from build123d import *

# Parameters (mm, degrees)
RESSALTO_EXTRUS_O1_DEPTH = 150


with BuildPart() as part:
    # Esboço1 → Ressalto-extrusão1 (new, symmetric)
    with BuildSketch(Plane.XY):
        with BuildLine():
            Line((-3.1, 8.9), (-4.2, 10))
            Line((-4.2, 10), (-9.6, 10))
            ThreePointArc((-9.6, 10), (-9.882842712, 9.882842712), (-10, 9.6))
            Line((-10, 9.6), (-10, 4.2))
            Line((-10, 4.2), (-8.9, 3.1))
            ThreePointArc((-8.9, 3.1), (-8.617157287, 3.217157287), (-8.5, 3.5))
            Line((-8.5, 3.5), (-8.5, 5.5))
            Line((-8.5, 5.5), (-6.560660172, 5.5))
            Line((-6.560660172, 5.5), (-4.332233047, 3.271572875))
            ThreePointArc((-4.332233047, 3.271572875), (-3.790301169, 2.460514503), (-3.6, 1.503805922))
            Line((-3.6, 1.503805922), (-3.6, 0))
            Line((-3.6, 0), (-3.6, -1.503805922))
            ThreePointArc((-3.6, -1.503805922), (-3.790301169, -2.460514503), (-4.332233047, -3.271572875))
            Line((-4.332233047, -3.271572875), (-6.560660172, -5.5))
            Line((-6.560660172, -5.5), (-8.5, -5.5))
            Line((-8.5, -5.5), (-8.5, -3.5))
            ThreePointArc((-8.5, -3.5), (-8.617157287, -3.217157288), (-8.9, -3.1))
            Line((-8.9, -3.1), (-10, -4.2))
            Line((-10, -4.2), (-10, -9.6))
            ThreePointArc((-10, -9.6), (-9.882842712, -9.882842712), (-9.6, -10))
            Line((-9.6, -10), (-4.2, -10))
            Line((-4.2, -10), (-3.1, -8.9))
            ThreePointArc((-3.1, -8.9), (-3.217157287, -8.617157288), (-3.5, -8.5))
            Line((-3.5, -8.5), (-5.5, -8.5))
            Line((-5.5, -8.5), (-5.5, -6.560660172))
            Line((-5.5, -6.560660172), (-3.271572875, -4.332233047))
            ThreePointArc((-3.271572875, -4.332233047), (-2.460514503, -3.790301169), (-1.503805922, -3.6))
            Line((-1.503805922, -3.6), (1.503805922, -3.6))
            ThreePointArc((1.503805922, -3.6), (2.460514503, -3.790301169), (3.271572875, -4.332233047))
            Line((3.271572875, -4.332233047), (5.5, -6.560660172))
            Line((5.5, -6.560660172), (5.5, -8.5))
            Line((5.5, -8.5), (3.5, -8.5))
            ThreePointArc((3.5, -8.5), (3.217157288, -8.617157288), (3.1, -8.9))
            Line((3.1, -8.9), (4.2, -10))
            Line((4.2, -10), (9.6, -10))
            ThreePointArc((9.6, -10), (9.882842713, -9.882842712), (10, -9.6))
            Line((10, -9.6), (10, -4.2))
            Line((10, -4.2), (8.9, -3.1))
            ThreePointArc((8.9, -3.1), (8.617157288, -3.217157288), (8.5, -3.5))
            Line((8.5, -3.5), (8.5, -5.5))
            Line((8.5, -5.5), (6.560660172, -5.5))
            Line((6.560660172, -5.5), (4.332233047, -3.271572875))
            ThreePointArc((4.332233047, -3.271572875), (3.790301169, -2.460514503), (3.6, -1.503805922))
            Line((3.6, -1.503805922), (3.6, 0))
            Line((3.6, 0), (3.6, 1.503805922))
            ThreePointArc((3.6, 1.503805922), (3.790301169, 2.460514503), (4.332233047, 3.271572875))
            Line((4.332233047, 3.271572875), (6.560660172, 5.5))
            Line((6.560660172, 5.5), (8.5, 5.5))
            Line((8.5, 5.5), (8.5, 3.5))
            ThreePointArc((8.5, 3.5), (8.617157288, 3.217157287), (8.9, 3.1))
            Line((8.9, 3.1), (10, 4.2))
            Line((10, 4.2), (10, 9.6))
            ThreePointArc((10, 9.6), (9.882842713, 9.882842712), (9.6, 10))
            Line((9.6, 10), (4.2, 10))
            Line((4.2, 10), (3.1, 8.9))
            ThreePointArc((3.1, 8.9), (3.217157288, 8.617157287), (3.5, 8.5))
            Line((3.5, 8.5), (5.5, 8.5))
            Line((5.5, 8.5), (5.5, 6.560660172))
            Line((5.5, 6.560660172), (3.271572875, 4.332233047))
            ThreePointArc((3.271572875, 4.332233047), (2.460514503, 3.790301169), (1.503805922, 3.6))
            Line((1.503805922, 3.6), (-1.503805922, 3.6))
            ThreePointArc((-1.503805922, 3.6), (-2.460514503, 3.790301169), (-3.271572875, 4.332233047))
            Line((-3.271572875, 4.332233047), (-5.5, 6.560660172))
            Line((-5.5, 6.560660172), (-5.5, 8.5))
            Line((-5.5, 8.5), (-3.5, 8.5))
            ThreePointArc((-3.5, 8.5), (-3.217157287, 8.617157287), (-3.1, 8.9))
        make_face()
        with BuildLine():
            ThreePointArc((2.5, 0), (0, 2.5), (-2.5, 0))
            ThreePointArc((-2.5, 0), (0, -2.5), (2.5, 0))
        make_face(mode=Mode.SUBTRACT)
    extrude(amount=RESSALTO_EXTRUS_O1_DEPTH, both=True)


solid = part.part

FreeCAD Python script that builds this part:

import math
import FreeCAD as App
import Part
import Sketcher
from FreeCAD import Vector

doc = App.newDocument("Part")
body = doc.addObject("PartDesign::Body", "Body")

# Sketch on XY plane
sketch1 = doc.addObject("Sketcher::SketchObject", "Sketch")
body.addObject(sketch1)
sketch1.AttachmentSupport = (doc.XY_Plane, [""])
sketch1.MapMode = "FlatFace"
sketch1.addGeometry(Part.LineSegment(Vector(-3.1, 8.9, 0), Vector(-4.2, 10, 0)), False)
sketch1.addGeometry(Part.LineSegment(Vector(-4.2, 10, 0), Vector(-9.6, 10, 0)), False)
sketch1.addGeometry(Part.ArcOfCircle(Part.Circle(Vector(-9.6, 9.6, 0), Vector(0, 0, 1), 0.4), math.radians(90), math.radians(180)), False)
sketch1.addGeometry(Part.LineSegment(Vector(-10, 9.6, 0), Vector(-10, 4.2, 0)), False)
sketch1.addGeometry(Part.LineSegment(Vector(-10, 4.2, 0), Vector(-8.9, 3.1, 0)), False)
sketch1.addGeometry(Part.ArcOfCircle(Part.Circle(Vector(-8.9, 3.5, 0), Vector(0, 0, 1), 0.4), math.radians(-90), math.radians(0)), False)
sketch1.addGeometry(Part.LineSegment(Vector(-8.5, 3.5, 0), Vector(-8.5, 5.5, 0)), False)
sketch1.addGeometry(Part.LineSegment(Vector(-8.5, 5.5, 0), Vector(-6.56, 5.5, 0)), False)
sketch1.addGeometry(Part.LineSegment(Vector(-6.56, 5.5, 0), Vector(-4.33, 3.27, 0)), False)
sketch1.addGeometry(Part.ArcOfCircle(Part.Circle(Vector(-6.1, 1.5, 0), Vector(0, 0, 1), 2.5), math.radians(0), math.radians(45)), False)
sketch1.addGeometry(Part.LineSegment(Vector(-3.6, 1.5, 0), Vector(-3.6, -1.5, 0)), False)
sketch1.addGeometry(Part.ArcOfCircle(Part.Circle(Vector(-6.1, -1.5, 0), Vector(0, 0, 1), 2.5), math.radians(-45), math.radians(0)), False)
sketch1.addGeometry(Part.LineSegment(Vector(-4.33, -3.27, 0), Vector(-6.56, -5.5, 0)), False)
sketch1.addGeometry(Part.LineSegment(Vector(-6.56, -5.5, 0), Vector(-8.5, -5.5, 0)), False)
sketch1.addGeometry(Part.LineSegment(Vector(-8.5, -5.5, 0), Vector(-8.5, -3.5, 0)), False)
sketch1.addGeometry(Part.ArcOfCircle(Part.Circle(Vector(-8.9, -3.5, 0), Vector(0, 0, 1), 0.4), math.radians(0), math.radians(90)), False)
sketch1.addGeometry(Part.LineSegment(Vector(-8.9, -3.1, 0), Vector(-10, -4.2, 0)), False)
sketch1.addGeometry(Part.LineSegment(Vector(-10, -4.2, 0), Vector(-10, -9.6, 0)), False)
sketch1.addGeometry(Part.ArcOfCircle(Part.Circle(Vector(-9.6, -9.6, 0), Vector(0, 0, 1), 0.4), math.radians(-180), math.radians(-90)), False)
sketch1.addGeometry(Part.LineSegment(Vector(-9.6, -10, 0), Vector(-4.2, -10, 0)), False)
sketch1.addGeometry(Part.LineSegment(Vector(-4.2, -10, 0), Vector(-3.1, -8.9, 0)), False)
sketch1.addGeometry(Part.ArcOfCircle(Part.Circle(Vector(-3.5, -8.9, 0), Vector(0, 0, 1), 0.4), math.radians(0), math.radians(90)), False)
sketch1.addGeometry(Part.LineSegment(Vector(-3.5, -8.5, 0), Vector(-5.5, -8.5, 0)), False)
sketch1.addGeometry(Part.LineSegment(Vector(-5.5, -8.5, 0), Vector(-5.5, -6.56, 0)), False)
sketch1.addGeometry(Part.LineSegment(Vector(-5.5, -6.56, 0), Vector(-3.27, -4.33, 0)), False)
sketch1.addGeometry(Part.ArcOfCircle(Part.Circle(Vector(-1.5, -6.1, 0), Vector(0, 0, 1), 2.5), math.radians(90), math.radians(135)), False)
sketch1.addGeometry(Part.LineSegment(Vector(-1.5, -3.6, 0), Vector(1.5, -3.6, 0)), False)
sketch1.addGeometry(Part.ArcOfCircle(Part.Circle(Vector(1.5, -6.1, 0), Vector(0, 0, 1), 2.5), math.radians(45), math.radians(90)), False)
sketch1.addGeometry(Part.LineSegment(Vector(3.27, -4.33, 0), Vector(5.5, -6.56, 0)), False)
sketch1.addGeometry(Part.LineSegment(Vector(5.5, -6.56, 0), Vector(5.5, -8.5, 0)), False)
sketch1.addGeometry(Part.LineSegment(Vector(5.5, -8.5, 0), Vector(3.5, -8.5, 0)), False)
sketch1.addGeometry(Part.ArcOfCircle(Part.Circle(Vector(3.5, -8.9, 0), Vector(0, 0, 1), 0.4), math.radians(90), math.radians(180)), False)
sketch1.addGeometry(Part.LineSegment(Vector(3.1, -8.9, 0), Vector(4.2, -10, 0)), False)
sketch1.addGeometry(Part.LineSegment(Vector(4.2, -10, 0), Vector(9.6, -10, 0)), False)
sketch1.addGeometry(Part.ArcOfCircle(Part.Circle(Vector(9.6, -9.6, 0), Vector(0, 0, 1), 0.4), math.radians(-90), math.radians(0)), False)
sketch1.addGeometry(Part.LineSegment(Vector(10, -9.6, 0), Vector(10, -4.2, 0)), False)
sketch1.addGeometry(Part.LineSegment(Vector(10, -4.2, 0), Vector(8.9, -3.1, 0)), False)
sketch1.addGeometry(Part.ArcOfCircle(Part.Circle(Vector(8.9, -3.5, 0), Vector(0, 0, 1), 0.4), math.radians(90), math.radians(180)), False)
sketch1.addGeometry(Part.LineSegment(Vector(8.5, -3.5, 0), Vector(8.5, -5.5, 0)), False)
sketch1.addGeometry(Part.LineSegment(Vector(8.5, -5.5, 0), Vector(6.56, -5.5, 0)), False)
sketch1.addGeometry(Part.LineSegment(Vector(6.56, -5.5, 0), Vector(4.33, -3.27, 0)), False)
sketch1.addGeometry(Part.ArcOfCircle(Part.Circle(Vector(6.1, -1.5, 0), Vector(0, 0, 1), 2.5), math.radians(-180), math.radians(-135)), False)
sketch1.addGeometry(Part.LineSegment(Vector(3.6, -1.5, 0), Vector(3.6, 1.5, 0)), False)
sketch1.addGeometry(Part.ArcOfCircle(Part.Circle(Vector(6.1, 1.5, 0), Vector(0, 0, 1), 2.5), math.radians(135), math.radians(180)), False)
sketch1.addGeometry(Part.LineSegment(Vector(4.33, 3.27, 0), Vector(6.56, 5.5, 0)), False)
sketch1.addGeometry(Part.LineSegment(Vector(6.56, 5.5, 0), Vector(8.5, 5.5, 0)), False)
sketch1.addGeometry(Part.LineSegment(Vector(8.5, 5.5, 0), Vector(8.5, 3.5, 0)), False)
sketch1.addGeometry(Part.ArcOfCircle(Part.Circle(Vector(8.9, 3.5, 0), Vector(0, 0, 1), 0.4), math.radians(180), math.radians(270)), False)
sketch1.addGeometry(Part.LineSegment(Vector(8.9, 3.1, 0), Vector(10, 4.2, 0)), False)
sketch1.addGeometry(Part.LineSegment(Vector(10, 4.2, 0), Vector(10, 9.6, 0)), False)
sketch1.addGeometry(Part.ArcOfCircle(Part.Circle(Vector(9.6, 9.6, 0), Vector(0, 0, 1), 0.4), math.radians(0), math.radians(90)), False)
sketch1.addGeometry(Part.LineSegment(Vector(9.6, 10, 0), Vector(4.2, 10, 0)), False)
sketch1.addGeometry(Part.LineSegment(Vector(4.2, 10, 0), Vector(3.1, 8.9, 0)), False)
sketch1.addGeometry(Part.ArcOfCircle(Part.Circle(Vector(3.5, 8.9, 0), Vector(0, 0, 1), 0.4), math.radians(180), math.radians(270)), False)
sketch1.addGeometry(Part.LineSegment(Vector(3.5, 8.5, 0), Vector(5.5, 8.5, 0)), False)
sketch1.addGeometry(Part.LineSegment(Vector(5.5, 8.5, 0), Vector(5.5, 6.56, 0)), False)
sketch1.addGeometry(Part.LineSegment(Vector(5.5, 6.56, 0), Vector(3.27, 4.33, 0)), False)
sketch1.addGeometry(Part.ArcOfCircle(Part.Circle(Vector(1.5, 6.1, 0), Vector(0, 0, 1), 2.5), math.radians(-90), math.radians(-45)), False)
sketch1.addGeometry(Part.LineSegment(Vector(1.5, 3.6, 0), Vector(-1.5, 3.6, 0)), False)
sketch1.addGeometry(Part.ArcOfCircle(Part.Circle(Vector(-1.5, 6.1, 0), Vector(0, 0, 1), 2.5), math.radians(-135), math.radians(-90)), False)
sketch1.addGeometry(Part.LineSegment(Vector(-3.27, 4.33, 0), Vector(-5.5, 6.56, 0)), False)
sketch1.addGeometry(Part.LineSegment(Vector(-5.5, 6.56, 0), Vector(-5.5, 8.5, 0)), False)
sketch1.addGeometry(Part.LineSegment(Vector(-5.5, 8.5, 0), Vector(-3.5, 8.5, 0)), False)
sketch1.addGeometry(Part.ArcOfCircle(Part.Circle(Vector(-3.5, 8.9, 0), Vector(0, 0, 1), 0.4), math.radians(-90), math.radians(0)), False)
sketch1.addGeometry(Part.Circle(Vector(0, 0, 0), Vector(0, 0, 1), 2.5), False)
sketch1.addConstraint(Sketcher.Constraint("Coincident", 0, 2, 1, 1))
sketch1.addConstraint(Sketcher.Constraint("Tangent", 1, 2, 2, 1))
sketch1.addConstraint(Sketcher.Constraint("Tangent", 2, 2, 3, 1))
sketch1.addConstraint(Sketcher.Constraint("Coincident", 3, 2, 4, 1))
sketch1.addConstraint(Sketcher.Constraint("Coincident", 4, 2, 5, 1))
sketch1.addConstraint(Sketcher.Constraint("Tangent", 5, 2, 6, 1))
sketch1.addConstraint(Sketcher.Constraint("Coincident", 6, 2, 7, 1))
sketch1.addConstraint(Sketcher.Constraint("Coincident", 7, 2, 8, 1))
sketch1.addConstraint(Sketcher.Constraint("Tangent", 8, 2, 9, 2))
sketch1.addConstraint(Sketcher.Constraint("Tangent", 9, 1, 10, 1))
sketch1.addConstraint(Sketcher.Constraint("Tangent", 10, 2, 11, 2))
sketch1.addConstraint(Sketcher.Constraint("Tangent", 11, 1, 12, 1))
sketch1.addConstraint(Sketcher.Constraint("Coincident", 12, 2, 13, 1))
sketch1.addConstraint(Sketcher.Constraint("Coincident", 13, 2, 14, 1))
sketch1.addConstraint(Sketcher.Constraint("Tangent", 14, 2, 15, 1))
sketch1.addConstraint(Sketcher.Constraint("Coincident", 15, 2, 16, 1))
sketch1.addConstraint(Sketcher.Constraint("Coincident", 16, 2, 17, 1))
sketch1.addConstraint(Sketcher.Constraint("Tangent", 17, 2, 18, 1))
sketch1.addConstraint(Sketcher.Constraint("Tangent", 18, 2, 19, 1))
sketch1.addConstraint(Sketcher.Constraint("Coincident", 19, 2, 20, 1))
sketch1.addConstraint(Sketcher.Constraint("Coincident", 20, 2, 21, 1))
sketch1.addConstraint(Sketcher.Constraint("Tangent", 21, 2, 22, 1))
sketch1.addConstraint(Sketcher.Constraint("Coincident", 22, 2, 23, 1))
sketch1.addConstraint(Sketcher.Constraint("Coincident", 23, 2, 24, 1))
sketch1.addConstraint(Sketcher.Constraint("Tangent", 24, 2, 25, 2))
sketch1.addConstraint(Sketcher.Constraint("Tangent", 25, 1, 26, 1))
sketch1.addConstraint(Sketcher.Constraint("Tangent", 26, 2, 27, 2))
sketch1.addConstraint(Sketcher.Constraint("Tangent", 27, 1, 28, 1))
sketch1.addConstraint(Sketcher.Constraint("Coincident", 28, 2, 29, 1))
sketch1.addConstraint(Sketcher.Constraint("Coincident", 29, 2, 30, 1))
sketch1.addConstraint(Sketcher.Constraint("Tangent", 30, 2, 31, 1))
sketch1.addConstraint(Sketcher.Constraint("Coincident", 31, 2, 32, 1))
sketch1.addConstraint(Sketcher.Constraint("Coincident", 32, 2, 33, 1))
sketch1.addConstraint(Sketcher.Constraint("Tangent", 33, 2, 34, 1))
sketch1.addConstraint(Sketcher.Constraint("Tangent", 34, 2, 35, 1))
sketch1.addConstraint(Sketcher.Constraint("Coincident", 35, 2, 36, 1))
sketch1.addConstraint(Sketcher.Constraint("Coincident", 36, 2, 37, 1))
sketch1.addConstraint(Sketcher.Constraint("Tangent", 37, 2, 38, 1))
sketch1.addConstraint(Sketcher.Constraint("Coincident", 38, 2, 39, 1))
sketch1.addConstraint(Sketcher.Constraint("Coincident", 39, 2, 40, 1))
sketch1.addConstraint(Sketcher.Constraint("Tangent", 40, 2, 41, 2))
sketch1.addConstraint(Sketcher.Constraint("Tangent", 41, 1, 42, 1))
sketch1.addConstraint(Sketcher.Constraint("Tangent", 42, 2, 43, 2))
sketch1.addConstraint(Sketcher.Constraint("Tangent", 43, 1, 44, 1))
sketch1.addConstraint(Sketcher.Constraint("Coincident", 44, 2, 45, 1))
sketch1.addConstraint(Sketcher.Constraint("Coincident", 45, 2, 46, 1))
sketch1.addConstraint(Sketcher.Constraint("Tangent", 46, 2, 47, 1))
sketch1.addConstraint(Sketcher.Constraint("Coincident", 47, 2, 48, 1))
sketch1.addConstraint(Sketcher.Constraint("Coincident", 48, 2, 49, 1))
sketch1.addConstraint(Sketcher.Constraint("Tangent", 49, 2, 50, 1))
sketch1.addConstraint(Sketcher.Constraint("Tangent", 50, 2, 51, 1))
sketch1.addConstraint(Sketcher.Constraint("Coincident", 51, 2, 52, 1))
sketch1.addConstraint(Sketcher.Constraint("Coincident", 52, 2, 53, 1))
sketch1.addConstraint(Sketcher.Constraint("Tangent", 53, 2, 54, 1))
sketch1.addConstraint(Sketcher.Constraint("Coincident", 54, 2, 55, 1))
sketch1.addConstraint(Sketcher.Constraint("Coincident", 55, 2, 56, 1))
sketch1.addConstraint(Sketcher.Constraint("Tangent", 56, 2, 57, 2))
sketch1.addConstraint(Sketcher.Constraint("Tangent", 57, 1, 58, 1))
sketch1.addConstraint(Sketcher.Constraint("Tangent", 58, 2, 59, 2))
sketch1.addConstraint(Sketcher.Constraint("Tangent", 59, 1, 60, 1))
sketch1.addConstraint(Sketcher.Constraint("Coincident", 60, 2, 61, 1))
sketch1.addConstraint(Sketcher.Constraint("Coincident", 61, 2, 62, 1))
sketch1.addConstraint(Sketcher.Constraint("Tangent", 62, 2, 63, 1))
sketch1.addConstraint(Sketcher.Constraint("Coincident", 63, 2, 0, 1))
sketch1.addConstraint(Sketcher.Constraint("Horizontal", 1))
sketch1.addConstraint(Sketcher.Constraint("Vertical", 3))
sketch1.addConstraint(Sketcher.Constraint("Vertical", 6))
sketch1.addConstraint(Sketcher.Constraint("Horizontal", 7))
sketch1.addConstraint(Sketcher.Constraint("Vertical", 10))
sketch1.addConstraint(Sketcher.Constraint("Horizontal", 13))
sketch1.addConstraint(Sketcher.Constraint("Vertical", 14))
sketch1.addConstraint(Sketcher.Constraint("Vertical", 17))
sketch1.addConstraint(Sketcher.Constraint("Horizontal", 19))
sketch1.addConstraint(Sketcher.Constraint("Horizontal", 22))
sketch1.addConstraint(Sketcher.Constraint("Vertical", 23))
sketch1.addConstraint(Sketcher.Constraint("Horizontal", 26))
sketch1.addConstraint(Sketcher.Constraint("Vertical", 29))
sketch1.addConstraint(Sketcher.Constraint("Horizontal", 30))
sketch1.addConstraint(Sketcher.Constraint("Horizontal", 33))
sketch1.addConstraint(Sketcher.Constraint("Vertical", 35))
sketch1.addConstraint(Sketcher.Constraint("Vertical", 38))
sketch1.addConstraint(Sketcher.Constraint("Horizontal", 39))
sketch1.addConstraint(Sketcher.Constraint("Vertical", 42))
sketch1.addConstraint(Sketcher.Constraint("Horizontal", 45))
sketch1.addConstraint(Sketcher.Constraint("Vertical", 46))
sketch1.addConstraint(Sketcher.Constraint("Vertical", 49))
sketch1.addConstraint(Sketcher.Constraint("Horizontal", 51))
sketch1.addConstraint(Sketcher.Constraint("Horizontal", 54))
sketch1.addConstraint(Sketcher.Constraint("Vertical", 55))
sketch1.addConstraint(Sketcher.Constraint("Horizontal", 58))
sketch1.addConstraint(Sketcher.Constraint("Vertical", 61))
sketch1.addConstraint(Sketcher.Constraint("Horizontal", 62))
sketch1.addConstraint(Sketcher.Constraint("Coincident", 64, 3, -1, 1))
sketch1.addConstraint(Sketcher.Constraint("Equal", 2, 5))
sketch1.addConstraint(Sketcher.Constraint("Equal", 9, 11))
sketch1.addConstraint(Sketcher.Constraint("Equal", 5, 15))
sketch1.addConstraint(Sketcher.Constraint("Equal", 15, 18))
sketch1.addConstraint(Sketcher.Constraint("Equal", 18, 21))
sketch1.addConstraint(Sketcher.Constraint("Equal", 11, 25))
sketch1.addConstraint(Sketcher.Constraint("Equal", 25, 27))
sketch1.addConstraint(Sketcher.Constraint("Equal", 21, 31))
sketch1.addConstraint(Sketcher.Constraint("Equal", 31, 34))
sketch1.addConstraint(Sketcher.Constraint("Equal", 34, 37))
sketch1.addConstraint(Sketcher.Constraint("Equal", 27, 41))
sketch1.addConstraint(Sketcher.Constraint("Equal", 41, 43))
sketch1.addConstraint(Sketcher.Constraint("Equal", 37, 47))
sketch1.addConstraint(Sketcher.Constraint("Equal", 47, 50))
sketch1.addConstraint(Sketcher.Constraint("Equal", 50, 53))
sketch1.addConstraint(Sketcher.Constraint("Equal", 43, 57))
sketch1.addConstraint(Sketcher.Constraint("Equal", 57, 59))
sketch1.addConstraint(Sketcher.Constraint("Equal", 53, 63))
sketch1.addConstraint(Sketcher.Constraint("Equal", 59, 64))
sketch1.addConstraint(Sketcher.Constraint("Symmetric", 2, 3, 34, 3, -1, 1))
sketch1.addConstraint(Sketcher.Constraint("Symmetric", 5, 3, 37, 3, -1, 1))
sketch1.addConstraint(Sketcher.Constraint("Symmetric", 9, 3, 41, 3, -1, 1))
sketch1.addConstraint(Sketcher.Constraint("Symmetric", 15, 3, 47, 3, -1, 1))
sketch1.addConstraint(Sketcher.Constraint("Symmetric", 18, 3, 50, 3, -1, 1))
sketch1.addConstraint(Sketcher.Constraint("Symmetric", 21, 3, 53, 3, -1, 1))
sketch1.addConstraint(Sketcher.Constraint("Symmetric", 25, 3, 57, 3, -1, 1))
sketch1.addConstraint(Sketcher.Constraint("Symmetric", 31, 3, 63, 3, -1, 1))
sketch1.addConstraint(Sketcher.Constraint("Symmetric", 7, 2, 39, 2, -1, 1))
sketch1.addConstraint(Sketcher.Constraint("Symmetric", 11, 1, 43, 1, -1, 1))
sketch1.addConstraint(Sketcher.Constraint("Symmetric", 23, 2, 55, 2, -1, 1))
sketch1.addConstraint(Sketcher.Constraint("Symmetric", 27, 1, 59, 1, -1, 1))
sketch1.addConstraint(Sketcher.Constraint("Symmetric", 21, 3, 31, 3, -2))
sketch1.addConstraint(Sketcher.Constraint("Symmetric", 18, 3, 34, 3, -2))
sketch1.addConstraint(Sketcher.Constraint("Symmetric", 15, 3, 37, 3, -2))
sketch1.addConstraint(Sketcher.Constraint("Symmetric", 24, 2, 27, 1, -2))
sketch1.addConstraint(Sketcher.Constraint("Symmetric", 12, 2, 39, 2, -2))
sketch1.addConstraint(Sketcher.Constraint("Parallel", 0, 4))
sketch1.addConstraint(Sketcher.Constraint("Parallel", 4, 8))
sketch1.addConstraint(Sketcher.Constraint("Perpendicular", 8, 12))
sketch1.addConstraint(Sketcher.Constraint("Parallel", 12, 16))
sketch1.addConstraint(Sketcher.Constraint("Parallel", 16, 20))
sketch1.addConstraint(Sketcher.Constraint("Parallel", 20, 24))
sketch1.addConstraint(Sketcher.Constraint("Perpendicular", 24, 28))
sketch1.addConstraint(Sketcher.Constraint("Parallel", 28, 32))
sketch1.addConstraint(Sketcher.Constraint("Parallel", 32, 36))
sketch1.addConstraint(Sketcher.Constraint("Parallel", 44, 48))
sketch1.addConstraint(Sketcher.Constraint("Parallel", 48, 52))
sketch1.addConstraint(Sketcher.Constraint("Horizontal", 31, 3, 20, 2))
sketch1.addConstraint(Sketcher.Constraint("Horizontal", 23, 2, 28, 2))
sketch1.addConstraint(Sketcher.Constraint("Horizontal", 20, 2, 31, 2))
sketch1.addConstraint(Sketcher.Constraint("Horizontal", 16, 2, 35, 2))
sketch1.addConstraint(Sketcher.Constraint("Horizontal", 7, 2, 44, 2))
sketch1.addConstraint(Sketcher.Constraint("Horizontal", 3, 2, 48, 2))
sketch1.addConstraint(Sketcher.Constraint("Horizontal", 63, 3, 52, 2))
sketch1.addConstraint(Sketcher.Constraint("Horizontal", 55, 2, 60, 2))
sketch1.addConstraint(Sketcher.Constraint("Horizontal", 52, 2, 63, 2))
sketch1.addConstraint(Sketcher.Constraint("Vertical", 15, 3, 4, 2))
sketch1.addConstraint(Sketcher.Constraint("Vertical", 4, 2, 15, 2))
sketch1.addConstraint(Sketcher.Constraint("Equal", 51, 3))
sketch1.addConstraint(Sketcher.Constraint("Equal", 62, 6))
sketch1.addConstraint(Sketcher.Constraint("Equal", 58, 10))
sketch1.addConstraint(Sketcher.Constraint("Equal", 45, 23))
sketch1.addConstraint(Sketcher.Constraint("Equal", 0, 4))
sketch1.addConstraint(Sketcher.Constraint("Equal", 12, 24))
sketch1.addConstraint(Sketcher.Constraint("Diameter", 64, 5.0))
sketch1.addConstraint(Sketcher.Constraint("Radius", 2, 0.4))
sketch1.addConstraint(Sketcher.Constraint("DistanceX", 22, 2, 22, 1, 2.0))
sketch1.addConstraint(Sketcher.Constraint("DistanceX", 1, 2, 1, 1, 5.4))
sketch1.addConstraint(Sketcher.Constraint("DistanceY", -1, 1, 0, 2, 10.0))
sketch1.addConstraint(Sketcher.Constraint("DistanceX", 5, 3, -1, 1, 8.9))
sketch1.addConstraint(Sketcher.Constraint("DistanceX", 9, 3, -1, 1, 6.1))
sketch1.addConstraint(Sketcher.Constraint("DistanceX", 7, 1, 7, 2, 1.93934))
pad1 = doc.addObject("PartDesign::Pad", "Pad")
body.addObject(pad1)
pad1.Profile = sketch1
pad1.Length = 300
pad1.Midplane = True

doc.recompute()
